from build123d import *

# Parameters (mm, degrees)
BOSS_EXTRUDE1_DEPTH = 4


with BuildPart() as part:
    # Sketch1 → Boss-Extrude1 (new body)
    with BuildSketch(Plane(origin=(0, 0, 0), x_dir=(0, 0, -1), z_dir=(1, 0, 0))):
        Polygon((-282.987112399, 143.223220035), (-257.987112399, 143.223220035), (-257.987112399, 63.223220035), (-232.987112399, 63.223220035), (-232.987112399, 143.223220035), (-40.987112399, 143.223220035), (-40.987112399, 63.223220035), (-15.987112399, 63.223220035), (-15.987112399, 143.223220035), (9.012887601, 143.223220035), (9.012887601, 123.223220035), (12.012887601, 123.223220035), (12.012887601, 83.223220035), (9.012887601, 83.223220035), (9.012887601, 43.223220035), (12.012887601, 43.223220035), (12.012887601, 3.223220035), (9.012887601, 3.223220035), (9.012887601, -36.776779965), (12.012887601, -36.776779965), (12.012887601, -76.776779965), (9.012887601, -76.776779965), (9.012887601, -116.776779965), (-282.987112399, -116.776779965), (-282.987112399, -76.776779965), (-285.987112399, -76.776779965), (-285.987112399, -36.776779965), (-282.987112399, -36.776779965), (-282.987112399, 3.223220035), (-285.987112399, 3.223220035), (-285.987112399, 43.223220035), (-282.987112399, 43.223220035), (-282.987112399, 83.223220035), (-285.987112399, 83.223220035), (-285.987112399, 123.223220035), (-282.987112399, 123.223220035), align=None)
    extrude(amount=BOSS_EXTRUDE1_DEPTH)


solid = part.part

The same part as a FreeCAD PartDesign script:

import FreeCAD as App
import Part
import Sketcher

doc = App.newDocument("Part")
body = doc.addObject("PartDesign::Body", "Body")

# Sketch on YZ plane
sketch1 = doc.addObject("Sketcher::SketchObject", "Sketch")
body.addObject(sketch1)
sketch1.AttachmentSupport = (doc.YZ_Plane, [""])
sketch1.MapMode = "FlatFace"
sketch1.addGeometry([
    Part.LineSegment(App.Vector(143.22322, 257.987112, 0), App.Vector(143.22322, 282.987112, 0)),  # 0
    Part.LineSegment(App.Vector(143.22322, 282.987112, 0), App.Vector(123.22322, 282.987112, 0)),  # 1
    Part.LineSegment(App.Vector(123.22322, 282.987112, 0), App.Vector(123.22322, 285.987112, 0)),  # 2
    Part.LineSegment(App.Vector(123.22322, 285.987112, 0), App.Vector(83.22322, 285.987112, 0)),  # 3
    Part.LineSegment(App.Vector(83.22322, 285.987112, 0), App.Vector(83.22322, 282.987112, 0)),  # 4
    Part.LineSegment(App.Vector(83.22322, 282.987112, 0), App.Vector(43.22322, 282.987112, 0)),  # 5
    Part.LineSegment(App.Vector(43.22322, 282.987112, 0), App.Vector(43.22322, 285.987112, 0)),  # 6
    Part.LineSegment(App.Vector(43.22322, 285.987112, 0), App.Vector(3.22322, 285.987112, 0)),  # 7
    Part.LineSegment(App.Vector(3.22322, 285.987112, 0), App.Vector(3.22322, 282.987112, 0)),  # 8
    Part.LineSegment(App.Vector(3.22322, 282.987112, 0), App.Vector(-36.77678, 282.987112, 0)),  # 9
    Part.LineSegment(App.Vector(-36.77678, 282.987112, 0), App.Vector(-36.77678, 285.987112, 0)),  # 10
    Part.LineSegment(App.Vector(-36.77678, 285.987112, 0), App.Vector(-76.77678, 285.987112, 0)),  # 11
    Part.LineSegment(App.Vector(-76.77678, 285.987112, 0), App.Vector(-76.77678, 282.987112, 0)),  # 12
    Part.LineSegment(App.Vector(-76.77678, 282.987112, 0), App.Vector(-116.77678, 282.987112, 0)),  # 13
    Part.LineSegment(App.Vector(-116.77678, 282.987112, 0), App.Vector(-116.77678, -9.012888, 0)),  # 14
    Part.LineSegment(App.Vector(-116.77678, -9.012888, 0), App.Vector(-76.77678, -9.012888, 0)),  # 15
    Part.LineSegment(App.Vector(-76.77678, -9.012888, 0), App.Vector(-76.77678, -12.012888, 0)),  # 16
    Part.LineSegment(App.Vector(-76.77678, -12.012888, 0), App.Vector(-36.77678, -12.012888, 0)),  # 17
    Part.LineSegment(App.Vector(-36.77678, -12.012888, 0), App.Vector(-36.77678, -9.012888, 0)),  # 18
    Part.LineSegment(App.Vector(-36.77678, -9.012888, 0), App.Vector(3.22322, -9.012888, 0)),  # 19
    Part.LineSegment(App.Vector(3.22322, -9.012888, 0), App.Vector(3.22322, -12.012888, 0)),  # 20
    Part.LineSegment(App.Vector(3.22322, -12.012888, 0), App.Vector(43.22322, -12.012888, 0)),  # 21
    Part.LineSegment(App.Vector(43.22322, -12.012888, 0), App.Vector(43.22322, -9.012888, 0)),  # 22
    Part.LineSegment(App.Vector(43.22322, -9.012888, 0), App.Vector(83.22322, -9.012888, 0)),  # 23
    Part.LineSegment(App.Vector(83.22322, -9.012888, 0), App.Vector(83.22322, -12.012888, 0)),  # 24
    Part.LineSegment(App.Vector(83.22322, -12.012888, 0), App.Vector(123.22322, -12.012888, 0)),  # 25
    Part.LineSegment(App.Vector(123.22322, -12.012888, 0), App.Vector(123.22322, -9.012888, 0)),  # 26
    Part.LineSegment(App.Vector(123.22322, -9.012888, 0), App.Vector(143.22322, -9.012888, 0)),  # 27
    Part.LineSegment(App.Vector(143.22322, -9.012888, 0), App.Vector(143.22322, 15.987112, 0)),  # 28
    Part.LineSegment(App.Vector(143.22322, 15.987112, 0), App.Vector(63.22322, 15.987112, 0)),  # 29
    Part.LineSegment(App.Vector(63.22322, 15.987112, 0), App.Vector(63.22322, 40.987112, 0)),  # 30
    Part.LineSegment(App.Vector(63.22322, 40.987112, 0), App.Vector(143.22322, 40.987112, 0)),  # 31
    Part.LineSegment(App.Vector(143.22322, 40.987112, 0), App.Vector(143.22322, 232.987112, 0)),  # 32
    Part.LineSegment(App.Vector(143.22322, 232.987112, 0), App.Vector(63.22322, 232.987112, 0)),  # 33
    Part.LineSegment(App.Vector(63.22322, 232.987112, 0), App.Vector(63.22322, 257.987112, 0)),  # 34
    Part.LineSegment(App.Vector(63.22322, 257.987112, 0), App.Vector(143.22322, 257.987112, 0)),  # 35
], False)
sketch1.addConstraint([
    Sketcher.Constraint("Coincident", 0, 2, 1, 1),
    Sketcher.Constraint("Coincident", 1, 2, 2, 1),
    Sketcher.Constraint("Coincident", 2, 2, 3, 1),
    Sketcher.Constraint("Coincident", 3, 2, 4, 1),
    Sketcher.Constraint("Coincident", 4, 2, 5, 1),
    Sketcher.Constraint("Coincident", 5, 2, 6, 1),
    Sketcher.Constraint("Coincident", 6, 2, 7, 1),
    Sketcher.Constraint("Coincident", 7, 2, 8, 1),
    Sketcher.Constraint("Coincident", 8, 2, 9, 1),
    Sketcher.Constraint("Coincident", 9, 2, 10, 1),
    Sketcher.Constraint("Coincident", 10, 2, 11, 1),
    Sketcher.Constraint("Coincident", 11, 2, 12, 1),
    Sketcher.Constraint("Coincident", 12, 2, 13, 1),
    Sketcher.Constraint("Coincident", 13, 2, 14, 1),
    Sketcher.Constraint("Coincident", 14, 2, 15, 1),
    Sketcher.Constraint("Coincident", 15, 2, 16, 1),
    Sketcher.Constraint("Coincident", 16, 2, 17, 1),
    Sketcher.Constraint("Coincident", 17, 2, 18, 1),
    Sketcher.Constraint("Coincident", 18, 2, 19, 1),
    Sketcher.Constraint("Coincident", 19, 2, 20, 1),
    Sketcher.Constraint("Coincident", 20, 2, 21, 1),
    Sketcher.Constraint("Coincident", 21, 2, 22, 1),
    Sketcher.Constraint("Coincident", 22, 2, 23, 1),
    Sketcher.Constraint("Coincident", 23, 2, 24, 1),
    Sketcher.Constraint("Coincident", 24, 2, 25, 1),
    Sketcher.Constraint("Coincident", 25, 2, 26, 1),
    Sketcher.Constraint("Coincident", 26, 2, 27, 1),
    Sketcher.Constraint("Coincident", 27, 2, 28, 1),
    Sketcher.Constraint("Coincident", 28, 2, 29, 1),
    Sketcher.Constraint("Coincident", 29, 2, 30, 1),
    Sketcher.Constraint("Coincident", 30, 2, 31, 1),
    Sketcher.Constraint("Coincident", 31, 2, 32, 1),
    Sketcher.Constraint("Coincident", 32, 2, 33, 1),
    Sketcher.Constraint("Coincident", 33, 2, 34, 1),
    Sketcher.Constraint("Coincident", 34, 2, 35, 1),
    Sketcher.Constraint("Coincident", 35, 2, 0, 1),
    Sketcher.Constraint("Vertical", 0),
    Sketcher.Constraint("Horizontal", 1),
    Sketcher.Constraint("Vertical", 2),
    Sketcher.Constraint("Horizontal", 3),
    Sketcher.Constraint("Vertical", 4),
    Sketcher.Constraint("Horizontal", 5),
    Sketcher.Constraint("Vertical", 6),
    Sketcher.Constraint("Horizontal", 7),
    Sketcher.Constraint("Vertical", 8),
    Sketcher.Constraint("Horizontal", 9),
    Sketcher.Constraint("Vertical", 10),
    Sketcher.Constraint("Horizontal", 11),
    Sketcher.Constraint("Vertical", 12),
    Sketcher.Constraint("Horizontal", 13),
    Sketcher.Constraint("Vertical", 14),
    Sketcher.Constraint("Horizontal", 15),
    Sketcher.Constraint("Vertical", 16),
    Sketcher.Constraint("Horizontal", 17),
    Sketcher.Constraint("Vertical", 18),
    Sketcher.Constraint("Horizontal", 19),
    Sketcher.Constraint("Vertical", 20),
    Sketcher.Constraint("Horizontal", 21),
    Sketcher.Constraint("Vertical", 22),
    Sketcher.Constraint("Horizontal", 23),
    Sketcher.Constraint("Vertical", 24),
    Sketcher.Constraint("Horizontal", 25),
    Sketcher.Constraint("Vertical", 26),
    Sketcher.Constraint("Horizontal", 27),
    Sketcher.Constraint("Vertical", 28),
    Sketcher.Constraint("Horizontal", 29),
    Sketcher.Constraint("Vertical", 30),
    Sketcher.Constraint("Horizontal", 31),
    Sketcher.Constraint("Vertical", 32),
    Sketcher.Constraint("Horizontal", 33),
    Sketcher.Constraint("Vertical", 34),
    Sketcher.Constraint("Horizontal", 35),
    Sketcher.Constraint("Horizontal", 1, 2, 4, 2),
    Sketcher.Constraint("Horizontal", 3, 2, 6, 2),
    Sketcher.Constraint("Horizontal", 5, 2, 8, 2),
    Sketcher.Constraint("Horizontal", 7, 2, 10, 2),
    Sketcher.Constraint("Horizontal", 9, 2, 12, 2),
    Sketcher.Constraint("Horizontal", 15, 2, 18, 2),
    Sketcher.Constraint("Horizontal", 17, 2, 20, 2),
    Sketcher.Constraint("Horizontal", 19, 2, 22, 2),
    Sketcher.Constraint("Horizontal", 21, 2, 24, 2),
    Sketcher.Constraint("Horizontal", 23, 2, 26, 2),
    Sketcher.Constraint("Vertical", 12, 2, 15, 2),
    Sketcher.Constraint("Vertical", 10, 2, 17, 2),
    Sketcher.Constraint("Vertical", 8, 2, 19, 2),
    Sketcher.Constraint("Vertical", 6, 2, 21, 2),
    Sketcher.Constraint("Vertical", 4, 2, 23, 2),
    Sketcher.Constraint("Vertical", 2, 2, 25, 2),
    Sketcher.Constraint("Vertical", 0, 2, 27, 2),
    Sketcher.Constraint("Vertical", 28, 2, 31, 2),
    Sketcher.Constraint("Vertical", 30, 2, 33, 2),
    Sketcher.Constraint("Equal", 3, 5),
    Sketcher.Constraint("Equal", 5, 7),
    Sketcher.Constraint("Equal", 7, 9),
    Sketcher.Constraint("Equal", 9, 11),
    Sketcher.Constraint("Equal", 11, 13),
    Sketcher.Constraint("Equal", 12, 16),
    Sketcher.Constraint("Equal", 0, 28),
    Sketcher.Constraint("Equal", 28, 30),
    Sketcher.Constraint("Equal", 30, 34),
    Sketcher.Constraint("DistanceX", 1, 2, 1, 1, 20.0),
    Sketcher.Constraint("DistanceX", 3, 2, 3, 1, 40.0),
    Sketcher.Constraint("DistanceX", 29, 2, 29, 1, 80.0),
    Sketcher.Constraint("DistanceY", 0, 1, 0, 2, 25.0),
    Sketcher.Constraint("DistanceY", 2, 1, 2, 2, 3.0),
    Sketcher.Constraint("DistanceY", 14, 2, 14, 1, 292.0),
    Sketcher.Constraint("DistanceX", -1, 1, 0, 2, 143.22322),
    Sketcher.Constraint("DistanceY", -1, 1, 0, 2, 282.987112),
])
pad1 = doc.addObject("PartDesign::Pad", "Pad")
body.addObject(pad1)
pad1.Profile = sketch1
pad1.Length = 4

doc.recompute()
